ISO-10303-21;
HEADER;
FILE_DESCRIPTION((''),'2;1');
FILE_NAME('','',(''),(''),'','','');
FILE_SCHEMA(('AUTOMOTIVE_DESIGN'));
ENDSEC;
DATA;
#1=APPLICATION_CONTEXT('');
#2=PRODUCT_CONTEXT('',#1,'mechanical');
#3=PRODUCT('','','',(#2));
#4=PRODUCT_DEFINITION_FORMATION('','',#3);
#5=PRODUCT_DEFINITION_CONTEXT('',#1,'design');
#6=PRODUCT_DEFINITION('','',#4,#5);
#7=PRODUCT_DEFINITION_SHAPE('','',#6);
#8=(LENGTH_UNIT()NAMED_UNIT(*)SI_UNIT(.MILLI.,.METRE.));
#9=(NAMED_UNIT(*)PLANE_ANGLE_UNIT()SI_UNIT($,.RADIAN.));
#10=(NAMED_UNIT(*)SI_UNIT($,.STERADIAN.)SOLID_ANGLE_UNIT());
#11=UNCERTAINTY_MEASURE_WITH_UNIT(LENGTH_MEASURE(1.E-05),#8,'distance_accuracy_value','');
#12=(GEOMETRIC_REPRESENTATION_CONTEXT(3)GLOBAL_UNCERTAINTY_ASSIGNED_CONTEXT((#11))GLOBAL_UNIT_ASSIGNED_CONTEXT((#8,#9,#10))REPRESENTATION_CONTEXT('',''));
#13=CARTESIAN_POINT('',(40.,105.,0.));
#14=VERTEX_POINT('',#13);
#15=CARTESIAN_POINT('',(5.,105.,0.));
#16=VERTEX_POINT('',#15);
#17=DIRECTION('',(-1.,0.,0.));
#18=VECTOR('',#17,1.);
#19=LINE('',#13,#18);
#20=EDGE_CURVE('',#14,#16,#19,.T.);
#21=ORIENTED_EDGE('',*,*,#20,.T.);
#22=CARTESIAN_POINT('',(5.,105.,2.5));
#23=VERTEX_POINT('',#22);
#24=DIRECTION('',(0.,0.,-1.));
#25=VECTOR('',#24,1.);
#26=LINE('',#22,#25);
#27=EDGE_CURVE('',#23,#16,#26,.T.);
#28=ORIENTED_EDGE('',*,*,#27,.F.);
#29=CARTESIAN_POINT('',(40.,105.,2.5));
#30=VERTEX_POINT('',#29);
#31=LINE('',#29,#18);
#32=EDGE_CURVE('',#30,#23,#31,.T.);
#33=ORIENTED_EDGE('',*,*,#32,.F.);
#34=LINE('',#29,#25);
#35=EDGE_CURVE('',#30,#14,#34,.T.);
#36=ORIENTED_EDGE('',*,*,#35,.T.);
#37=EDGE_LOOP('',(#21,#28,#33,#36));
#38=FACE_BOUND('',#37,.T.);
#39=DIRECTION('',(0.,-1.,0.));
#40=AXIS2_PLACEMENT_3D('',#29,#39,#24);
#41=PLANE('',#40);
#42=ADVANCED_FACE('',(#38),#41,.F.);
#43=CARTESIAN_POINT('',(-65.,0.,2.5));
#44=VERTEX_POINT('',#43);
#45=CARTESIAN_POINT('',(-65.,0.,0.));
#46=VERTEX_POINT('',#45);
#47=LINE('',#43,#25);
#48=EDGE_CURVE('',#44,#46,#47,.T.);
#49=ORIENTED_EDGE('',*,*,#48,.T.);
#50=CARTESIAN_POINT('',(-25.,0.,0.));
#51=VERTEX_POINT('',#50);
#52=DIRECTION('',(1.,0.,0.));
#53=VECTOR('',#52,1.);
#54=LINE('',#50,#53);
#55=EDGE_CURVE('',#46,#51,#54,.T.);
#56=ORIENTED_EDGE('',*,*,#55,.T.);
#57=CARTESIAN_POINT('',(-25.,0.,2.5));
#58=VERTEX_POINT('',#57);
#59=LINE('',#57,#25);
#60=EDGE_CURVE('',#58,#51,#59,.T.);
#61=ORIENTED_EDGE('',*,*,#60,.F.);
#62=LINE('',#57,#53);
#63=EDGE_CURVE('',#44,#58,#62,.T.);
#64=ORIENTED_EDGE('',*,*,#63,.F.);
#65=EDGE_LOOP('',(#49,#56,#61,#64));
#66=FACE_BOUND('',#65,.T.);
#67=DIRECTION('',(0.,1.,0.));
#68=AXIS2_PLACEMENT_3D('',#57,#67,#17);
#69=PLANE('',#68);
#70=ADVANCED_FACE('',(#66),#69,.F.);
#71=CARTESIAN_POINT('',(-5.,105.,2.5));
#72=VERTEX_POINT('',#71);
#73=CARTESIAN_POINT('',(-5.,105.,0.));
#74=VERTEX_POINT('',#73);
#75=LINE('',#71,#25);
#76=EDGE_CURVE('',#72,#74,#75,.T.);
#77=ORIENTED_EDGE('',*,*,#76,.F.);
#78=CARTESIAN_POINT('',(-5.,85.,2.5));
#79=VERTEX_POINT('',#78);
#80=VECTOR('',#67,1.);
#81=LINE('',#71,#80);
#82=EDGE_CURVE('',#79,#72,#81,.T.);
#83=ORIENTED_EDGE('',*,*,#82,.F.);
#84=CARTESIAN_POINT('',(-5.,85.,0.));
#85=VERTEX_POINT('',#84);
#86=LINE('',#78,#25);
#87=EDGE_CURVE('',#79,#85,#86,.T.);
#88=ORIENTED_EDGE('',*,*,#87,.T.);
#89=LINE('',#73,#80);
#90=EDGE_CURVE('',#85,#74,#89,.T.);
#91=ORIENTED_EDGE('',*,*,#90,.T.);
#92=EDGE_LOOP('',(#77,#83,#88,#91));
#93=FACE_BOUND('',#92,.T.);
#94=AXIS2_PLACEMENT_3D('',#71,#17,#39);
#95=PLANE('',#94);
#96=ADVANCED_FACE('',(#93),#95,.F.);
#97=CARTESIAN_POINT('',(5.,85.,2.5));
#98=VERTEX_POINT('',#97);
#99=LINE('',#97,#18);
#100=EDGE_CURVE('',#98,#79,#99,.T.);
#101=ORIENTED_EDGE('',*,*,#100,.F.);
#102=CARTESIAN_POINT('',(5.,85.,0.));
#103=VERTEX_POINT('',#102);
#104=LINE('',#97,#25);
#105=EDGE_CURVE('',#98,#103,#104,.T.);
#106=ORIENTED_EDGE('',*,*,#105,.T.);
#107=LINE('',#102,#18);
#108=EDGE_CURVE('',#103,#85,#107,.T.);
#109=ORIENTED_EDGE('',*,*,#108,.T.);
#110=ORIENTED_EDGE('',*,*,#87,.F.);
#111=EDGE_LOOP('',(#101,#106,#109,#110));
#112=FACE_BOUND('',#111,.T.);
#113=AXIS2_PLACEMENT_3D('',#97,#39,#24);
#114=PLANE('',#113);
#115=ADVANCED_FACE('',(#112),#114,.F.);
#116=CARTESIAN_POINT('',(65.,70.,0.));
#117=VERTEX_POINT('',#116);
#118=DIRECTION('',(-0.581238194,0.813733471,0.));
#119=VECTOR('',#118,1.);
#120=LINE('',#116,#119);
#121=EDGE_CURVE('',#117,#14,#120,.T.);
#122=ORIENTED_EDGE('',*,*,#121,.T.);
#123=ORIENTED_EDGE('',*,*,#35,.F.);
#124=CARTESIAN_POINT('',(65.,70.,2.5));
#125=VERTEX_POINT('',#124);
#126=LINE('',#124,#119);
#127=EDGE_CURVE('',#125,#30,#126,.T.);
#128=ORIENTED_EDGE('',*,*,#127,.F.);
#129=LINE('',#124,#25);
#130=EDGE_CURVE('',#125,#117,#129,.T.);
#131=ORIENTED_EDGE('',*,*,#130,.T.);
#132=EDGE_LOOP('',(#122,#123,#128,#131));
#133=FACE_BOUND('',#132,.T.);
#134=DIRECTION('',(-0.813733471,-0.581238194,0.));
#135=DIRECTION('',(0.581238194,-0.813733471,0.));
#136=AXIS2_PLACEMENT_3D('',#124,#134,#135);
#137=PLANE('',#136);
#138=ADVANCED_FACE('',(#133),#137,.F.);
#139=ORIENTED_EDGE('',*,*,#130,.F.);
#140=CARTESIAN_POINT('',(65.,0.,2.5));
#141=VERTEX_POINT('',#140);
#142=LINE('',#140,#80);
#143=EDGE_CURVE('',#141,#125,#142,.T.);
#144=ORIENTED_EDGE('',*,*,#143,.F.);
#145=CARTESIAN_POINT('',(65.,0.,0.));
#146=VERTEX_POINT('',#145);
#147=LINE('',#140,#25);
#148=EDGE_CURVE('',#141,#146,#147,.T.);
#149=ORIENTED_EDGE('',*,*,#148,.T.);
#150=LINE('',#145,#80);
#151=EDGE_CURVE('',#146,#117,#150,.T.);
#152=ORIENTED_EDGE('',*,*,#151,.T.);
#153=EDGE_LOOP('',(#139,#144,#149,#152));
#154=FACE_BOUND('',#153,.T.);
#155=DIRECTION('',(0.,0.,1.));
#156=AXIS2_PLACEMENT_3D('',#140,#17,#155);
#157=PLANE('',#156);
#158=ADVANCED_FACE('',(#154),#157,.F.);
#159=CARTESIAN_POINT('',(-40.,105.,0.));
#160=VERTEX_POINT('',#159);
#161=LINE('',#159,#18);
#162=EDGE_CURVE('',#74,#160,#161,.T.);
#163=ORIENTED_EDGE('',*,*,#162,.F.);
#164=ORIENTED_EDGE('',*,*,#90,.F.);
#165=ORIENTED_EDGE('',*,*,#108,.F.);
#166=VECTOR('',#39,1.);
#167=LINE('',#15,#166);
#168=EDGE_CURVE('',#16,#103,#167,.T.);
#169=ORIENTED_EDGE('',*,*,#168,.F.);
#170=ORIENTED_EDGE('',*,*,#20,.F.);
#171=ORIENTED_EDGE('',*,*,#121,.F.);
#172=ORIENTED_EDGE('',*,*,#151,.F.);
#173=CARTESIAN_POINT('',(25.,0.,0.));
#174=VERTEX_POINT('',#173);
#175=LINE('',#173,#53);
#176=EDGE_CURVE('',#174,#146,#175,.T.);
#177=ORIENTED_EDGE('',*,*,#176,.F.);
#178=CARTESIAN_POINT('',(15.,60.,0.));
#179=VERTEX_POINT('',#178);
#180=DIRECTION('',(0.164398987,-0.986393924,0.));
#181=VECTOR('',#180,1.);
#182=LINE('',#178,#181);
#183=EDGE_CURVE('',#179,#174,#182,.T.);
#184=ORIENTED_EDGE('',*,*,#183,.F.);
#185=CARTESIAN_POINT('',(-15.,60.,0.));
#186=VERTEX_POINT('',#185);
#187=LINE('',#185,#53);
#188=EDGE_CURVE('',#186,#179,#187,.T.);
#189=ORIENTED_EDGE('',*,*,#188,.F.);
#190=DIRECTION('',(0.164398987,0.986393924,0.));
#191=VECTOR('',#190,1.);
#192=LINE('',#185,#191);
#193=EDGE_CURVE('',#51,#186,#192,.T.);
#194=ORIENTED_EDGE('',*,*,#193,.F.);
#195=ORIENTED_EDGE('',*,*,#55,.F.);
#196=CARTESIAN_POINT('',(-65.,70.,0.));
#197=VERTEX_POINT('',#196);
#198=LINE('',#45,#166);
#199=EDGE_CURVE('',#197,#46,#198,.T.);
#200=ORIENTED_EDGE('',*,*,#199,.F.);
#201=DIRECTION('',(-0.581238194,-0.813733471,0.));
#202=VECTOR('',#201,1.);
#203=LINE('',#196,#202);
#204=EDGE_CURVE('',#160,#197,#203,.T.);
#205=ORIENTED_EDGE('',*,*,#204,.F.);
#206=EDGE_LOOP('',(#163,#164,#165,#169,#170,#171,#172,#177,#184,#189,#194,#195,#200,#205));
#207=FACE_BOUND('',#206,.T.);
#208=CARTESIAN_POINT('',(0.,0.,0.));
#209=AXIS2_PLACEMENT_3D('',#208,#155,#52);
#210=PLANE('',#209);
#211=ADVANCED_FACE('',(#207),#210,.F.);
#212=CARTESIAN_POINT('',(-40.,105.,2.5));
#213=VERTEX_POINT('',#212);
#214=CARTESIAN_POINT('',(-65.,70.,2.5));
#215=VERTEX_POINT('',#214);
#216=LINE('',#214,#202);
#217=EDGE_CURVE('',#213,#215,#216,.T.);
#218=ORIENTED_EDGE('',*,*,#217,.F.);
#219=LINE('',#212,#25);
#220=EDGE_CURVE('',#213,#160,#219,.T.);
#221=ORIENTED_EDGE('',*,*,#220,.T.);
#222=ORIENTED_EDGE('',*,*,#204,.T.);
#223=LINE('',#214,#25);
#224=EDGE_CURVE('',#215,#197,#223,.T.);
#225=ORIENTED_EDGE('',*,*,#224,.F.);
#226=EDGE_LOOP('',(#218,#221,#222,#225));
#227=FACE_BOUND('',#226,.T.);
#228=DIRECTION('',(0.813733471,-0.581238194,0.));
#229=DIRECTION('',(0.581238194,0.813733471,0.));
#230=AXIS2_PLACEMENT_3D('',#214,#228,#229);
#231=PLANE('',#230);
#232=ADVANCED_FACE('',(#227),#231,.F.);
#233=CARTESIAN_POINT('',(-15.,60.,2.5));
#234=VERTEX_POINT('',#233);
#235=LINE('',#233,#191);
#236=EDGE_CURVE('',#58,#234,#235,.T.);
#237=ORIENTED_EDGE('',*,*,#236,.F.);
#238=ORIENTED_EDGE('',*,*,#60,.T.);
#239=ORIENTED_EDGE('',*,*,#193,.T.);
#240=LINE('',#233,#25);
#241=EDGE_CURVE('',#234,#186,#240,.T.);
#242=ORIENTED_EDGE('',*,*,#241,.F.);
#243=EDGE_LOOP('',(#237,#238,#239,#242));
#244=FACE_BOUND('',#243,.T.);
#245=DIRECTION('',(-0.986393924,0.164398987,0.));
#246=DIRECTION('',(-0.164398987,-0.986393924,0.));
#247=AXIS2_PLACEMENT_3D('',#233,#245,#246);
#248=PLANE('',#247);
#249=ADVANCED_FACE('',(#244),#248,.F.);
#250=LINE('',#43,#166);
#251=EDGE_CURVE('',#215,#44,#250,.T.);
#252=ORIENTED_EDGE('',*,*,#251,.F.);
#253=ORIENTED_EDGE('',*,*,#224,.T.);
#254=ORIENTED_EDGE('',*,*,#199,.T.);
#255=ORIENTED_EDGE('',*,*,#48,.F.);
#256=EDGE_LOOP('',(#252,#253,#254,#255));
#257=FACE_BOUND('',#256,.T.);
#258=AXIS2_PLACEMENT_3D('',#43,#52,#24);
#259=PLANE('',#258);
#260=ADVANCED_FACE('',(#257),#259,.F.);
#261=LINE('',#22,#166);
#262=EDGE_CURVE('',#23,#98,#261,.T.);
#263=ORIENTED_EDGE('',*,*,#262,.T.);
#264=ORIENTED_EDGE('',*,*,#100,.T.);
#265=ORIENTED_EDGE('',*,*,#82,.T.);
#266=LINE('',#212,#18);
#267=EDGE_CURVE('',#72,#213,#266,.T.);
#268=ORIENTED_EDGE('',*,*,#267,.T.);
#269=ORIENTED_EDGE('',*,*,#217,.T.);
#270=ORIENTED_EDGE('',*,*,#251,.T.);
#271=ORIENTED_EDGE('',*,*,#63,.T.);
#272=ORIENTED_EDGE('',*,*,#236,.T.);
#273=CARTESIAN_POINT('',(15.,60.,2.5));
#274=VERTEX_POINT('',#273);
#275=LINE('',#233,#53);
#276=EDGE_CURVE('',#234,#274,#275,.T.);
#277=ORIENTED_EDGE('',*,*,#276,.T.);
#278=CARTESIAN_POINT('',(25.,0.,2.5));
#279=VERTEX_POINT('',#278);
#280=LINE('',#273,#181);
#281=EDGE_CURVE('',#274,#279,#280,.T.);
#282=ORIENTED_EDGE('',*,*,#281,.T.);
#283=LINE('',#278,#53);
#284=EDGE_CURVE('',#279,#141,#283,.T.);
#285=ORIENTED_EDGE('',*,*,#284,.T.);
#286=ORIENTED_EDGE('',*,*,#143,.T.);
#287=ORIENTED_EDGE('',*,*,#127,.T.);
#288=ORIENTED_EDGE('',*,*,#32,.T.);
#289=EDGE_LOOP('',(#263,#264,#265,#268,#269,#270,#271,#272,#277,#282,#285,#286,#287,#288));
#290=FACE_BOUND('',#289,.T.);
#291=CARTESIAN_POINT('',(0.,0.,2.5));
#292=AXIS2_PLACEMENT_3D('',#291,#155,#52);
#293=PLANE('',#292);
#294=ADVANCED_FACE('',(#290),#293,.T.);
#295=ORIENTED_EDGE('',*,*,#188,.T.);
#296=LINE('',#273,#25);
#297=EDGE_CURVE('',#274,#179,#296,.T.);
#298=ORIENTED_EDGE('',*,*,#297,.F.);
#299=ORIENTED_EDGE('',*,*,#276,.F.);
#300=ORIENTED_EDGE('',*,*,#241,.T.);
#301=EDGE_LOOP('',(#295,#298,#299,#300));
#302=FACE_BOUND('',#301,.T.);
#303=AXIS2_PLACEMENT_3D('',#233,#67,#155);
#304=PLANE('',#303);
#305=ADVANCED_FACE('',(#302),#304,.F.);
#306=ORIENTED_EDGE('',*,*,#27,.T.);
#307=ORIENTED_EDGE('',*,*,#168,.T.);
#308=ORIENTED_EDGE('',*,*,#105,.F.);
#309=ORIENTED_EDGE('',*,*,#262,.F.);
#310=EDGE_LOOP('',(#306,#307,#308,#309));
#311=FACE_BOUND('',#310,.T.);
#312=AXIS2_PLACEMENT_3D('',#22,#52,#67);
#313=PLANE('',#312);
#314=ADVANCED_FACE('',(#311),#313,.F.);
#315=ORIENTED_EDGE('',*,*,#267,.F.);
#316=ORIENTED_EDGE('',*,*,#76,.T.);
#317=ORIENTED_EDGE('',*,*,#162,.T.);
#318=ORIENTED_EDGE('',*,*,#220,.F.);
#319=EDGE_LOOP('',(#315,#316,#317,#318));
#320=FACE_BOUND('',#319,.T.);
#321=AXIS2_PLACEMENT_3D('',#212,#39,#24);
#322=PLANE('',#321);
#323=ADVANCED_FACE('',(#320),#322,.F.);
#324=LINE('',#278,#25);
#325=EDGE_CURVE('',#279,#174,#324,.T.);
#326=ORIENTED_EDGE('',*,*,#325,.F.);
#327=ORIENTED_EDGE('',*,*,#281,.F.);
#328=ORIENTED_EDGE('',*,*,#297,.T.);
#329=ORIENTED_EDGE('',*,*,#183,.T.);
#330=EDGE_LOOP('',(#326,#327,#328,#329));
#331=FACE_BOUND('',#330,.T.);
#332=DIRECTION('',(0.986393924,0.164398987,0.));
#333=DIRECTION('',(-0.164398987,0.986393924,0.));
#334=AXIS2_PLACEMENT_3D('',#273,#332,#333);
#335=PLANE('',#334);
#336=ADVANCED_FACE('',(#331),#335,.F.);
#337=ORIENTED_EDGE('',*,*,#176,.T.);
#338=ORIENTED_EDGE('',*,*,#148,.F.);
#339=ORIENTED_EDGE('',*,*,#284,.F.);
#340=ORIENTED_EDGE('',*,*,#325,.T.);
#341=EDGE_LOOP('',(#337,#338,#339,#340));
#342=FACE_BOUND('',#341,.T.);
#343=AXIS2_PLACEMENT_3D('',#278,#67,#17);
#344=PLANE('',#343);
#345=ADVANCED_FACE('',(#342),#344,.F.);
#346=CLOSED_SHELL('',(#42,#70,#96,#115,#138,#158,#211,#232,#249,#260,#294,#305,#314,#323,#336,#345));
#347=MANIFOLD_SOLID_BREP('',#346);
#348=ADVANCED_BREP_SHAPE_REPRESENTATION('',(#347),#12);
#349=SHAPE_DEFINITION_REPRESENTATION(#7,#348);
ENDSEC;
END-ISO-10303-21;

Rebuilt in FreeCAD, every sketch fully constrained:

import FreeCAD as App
import Part
import Sketcher
from FreeCAD import Vector
Q = App.Units.Quantity


def add_polygon(sketch, points):
    """Adds a closed chain of lines whose ends are joined by coincident constraints."""
    first, n = sketch.GeometryCount, len(points)
    for a, b in zip(points, points[1:] + points[:1]):
        sketch.addGeometry(Part.LineSegment(App.Vector(*a, 0), App.Vector(*b, 0)), False)
    for i in range(n):
        sketch.addConstraint(Sketcher.Constraint("Coincident", first + i, 2, first + (i + 1) % n, 1))

doc = App.newDocument("Part")
body = doc.addObject("PartDesign::Body", "Body")

# Sketch on XY plane
sketch1 = body.newObject("Sketcher::SketchObject", "Sketch")
sketch1.AttachmentSupport = (doc.getObject("XY_Plane"), [""])
sketch1.MapMode = "FlatFace"
add_polygon(sketch1, [(-15, 60), (15, 60), (25, 0), (65, 0), (65, 70), (40, 105), (5, 105), (5, 85), (-5, 85), (-5, 105), (-40, 105), (-65, 70), (-65, 0), (-25, 0)])  # lines 0-13
sketch1.addConstraint([
    Sketcher.Constraint("Horizontal", 0),
    Sketcher.Constraint("Horizontal", 2),
    Sketcher.Constraint("Vertical", 3),
    Sketcher.Constraint("Horizontal", 5),
    Sketcher.Constraint("Vertical", 6),
    Sketcher.Constraint("Horizontal", 7),
    Sketcher.Constraint("Vertical", 8),
    Sketcher.Constraint("Horizontal", 9),
    Sketcher.Constraint("Vertical", 11),
    Sketcher.Constraint("Horizontal", 12),
    Sketcher.Constraint("Symmetric", 2, 2, 11, 2, -1, 1),
    Sketcher.Constraint("Symmetric", 5, 2, 8, 2, -2),
    Sketcher.Constraint("Symmetric", 1, 2, 12, 2, -2),
    Sketcher.Constraint("Horizontal", 3, 2, 10, 2),
    Sketcher.Constraint("Equal", 5, 9),
    Sketcher.Constraint("Equal", 1, 13),
    Sketcher.Constraint("DistanceX", 0, 1, 0, 2, Q("30 mm")),
    Sketcher.Constraint("DistanceX", 2, 1, 2, 2, Q("40 mm")),
    Sketcher.Constraint("DistanceX", 5, 2, 5, 1, Q("35 mm")),
    Sketcher.Constraint("DistanceX", 7, 2, 7, 1, Q("10 mm")),
    Sketcher.Constraint("DistanceY", 3, 1, 3, 2, Q("70 mm")),
    Sketcher.Constraint("DistanceY", 6, 2, 6, 1, Q("20 mm")),
    Sketcher.Constraint("DistanceY", -1, 1, 0, 2, Q("60 mm")),
    Sketcher.Constraint("DistanceX", -1, 1, 1, 2, Q("25 mm")),
    Sketcher.Constraint("DistanceY", -1, 1, 4, 2, Q("105 mm")),
])
pad1 = body.newObject("PartDesign::Pad", "Pad")
pad1.Profile = sketch1
pad1.Length = 2.5

doc.recompute()
